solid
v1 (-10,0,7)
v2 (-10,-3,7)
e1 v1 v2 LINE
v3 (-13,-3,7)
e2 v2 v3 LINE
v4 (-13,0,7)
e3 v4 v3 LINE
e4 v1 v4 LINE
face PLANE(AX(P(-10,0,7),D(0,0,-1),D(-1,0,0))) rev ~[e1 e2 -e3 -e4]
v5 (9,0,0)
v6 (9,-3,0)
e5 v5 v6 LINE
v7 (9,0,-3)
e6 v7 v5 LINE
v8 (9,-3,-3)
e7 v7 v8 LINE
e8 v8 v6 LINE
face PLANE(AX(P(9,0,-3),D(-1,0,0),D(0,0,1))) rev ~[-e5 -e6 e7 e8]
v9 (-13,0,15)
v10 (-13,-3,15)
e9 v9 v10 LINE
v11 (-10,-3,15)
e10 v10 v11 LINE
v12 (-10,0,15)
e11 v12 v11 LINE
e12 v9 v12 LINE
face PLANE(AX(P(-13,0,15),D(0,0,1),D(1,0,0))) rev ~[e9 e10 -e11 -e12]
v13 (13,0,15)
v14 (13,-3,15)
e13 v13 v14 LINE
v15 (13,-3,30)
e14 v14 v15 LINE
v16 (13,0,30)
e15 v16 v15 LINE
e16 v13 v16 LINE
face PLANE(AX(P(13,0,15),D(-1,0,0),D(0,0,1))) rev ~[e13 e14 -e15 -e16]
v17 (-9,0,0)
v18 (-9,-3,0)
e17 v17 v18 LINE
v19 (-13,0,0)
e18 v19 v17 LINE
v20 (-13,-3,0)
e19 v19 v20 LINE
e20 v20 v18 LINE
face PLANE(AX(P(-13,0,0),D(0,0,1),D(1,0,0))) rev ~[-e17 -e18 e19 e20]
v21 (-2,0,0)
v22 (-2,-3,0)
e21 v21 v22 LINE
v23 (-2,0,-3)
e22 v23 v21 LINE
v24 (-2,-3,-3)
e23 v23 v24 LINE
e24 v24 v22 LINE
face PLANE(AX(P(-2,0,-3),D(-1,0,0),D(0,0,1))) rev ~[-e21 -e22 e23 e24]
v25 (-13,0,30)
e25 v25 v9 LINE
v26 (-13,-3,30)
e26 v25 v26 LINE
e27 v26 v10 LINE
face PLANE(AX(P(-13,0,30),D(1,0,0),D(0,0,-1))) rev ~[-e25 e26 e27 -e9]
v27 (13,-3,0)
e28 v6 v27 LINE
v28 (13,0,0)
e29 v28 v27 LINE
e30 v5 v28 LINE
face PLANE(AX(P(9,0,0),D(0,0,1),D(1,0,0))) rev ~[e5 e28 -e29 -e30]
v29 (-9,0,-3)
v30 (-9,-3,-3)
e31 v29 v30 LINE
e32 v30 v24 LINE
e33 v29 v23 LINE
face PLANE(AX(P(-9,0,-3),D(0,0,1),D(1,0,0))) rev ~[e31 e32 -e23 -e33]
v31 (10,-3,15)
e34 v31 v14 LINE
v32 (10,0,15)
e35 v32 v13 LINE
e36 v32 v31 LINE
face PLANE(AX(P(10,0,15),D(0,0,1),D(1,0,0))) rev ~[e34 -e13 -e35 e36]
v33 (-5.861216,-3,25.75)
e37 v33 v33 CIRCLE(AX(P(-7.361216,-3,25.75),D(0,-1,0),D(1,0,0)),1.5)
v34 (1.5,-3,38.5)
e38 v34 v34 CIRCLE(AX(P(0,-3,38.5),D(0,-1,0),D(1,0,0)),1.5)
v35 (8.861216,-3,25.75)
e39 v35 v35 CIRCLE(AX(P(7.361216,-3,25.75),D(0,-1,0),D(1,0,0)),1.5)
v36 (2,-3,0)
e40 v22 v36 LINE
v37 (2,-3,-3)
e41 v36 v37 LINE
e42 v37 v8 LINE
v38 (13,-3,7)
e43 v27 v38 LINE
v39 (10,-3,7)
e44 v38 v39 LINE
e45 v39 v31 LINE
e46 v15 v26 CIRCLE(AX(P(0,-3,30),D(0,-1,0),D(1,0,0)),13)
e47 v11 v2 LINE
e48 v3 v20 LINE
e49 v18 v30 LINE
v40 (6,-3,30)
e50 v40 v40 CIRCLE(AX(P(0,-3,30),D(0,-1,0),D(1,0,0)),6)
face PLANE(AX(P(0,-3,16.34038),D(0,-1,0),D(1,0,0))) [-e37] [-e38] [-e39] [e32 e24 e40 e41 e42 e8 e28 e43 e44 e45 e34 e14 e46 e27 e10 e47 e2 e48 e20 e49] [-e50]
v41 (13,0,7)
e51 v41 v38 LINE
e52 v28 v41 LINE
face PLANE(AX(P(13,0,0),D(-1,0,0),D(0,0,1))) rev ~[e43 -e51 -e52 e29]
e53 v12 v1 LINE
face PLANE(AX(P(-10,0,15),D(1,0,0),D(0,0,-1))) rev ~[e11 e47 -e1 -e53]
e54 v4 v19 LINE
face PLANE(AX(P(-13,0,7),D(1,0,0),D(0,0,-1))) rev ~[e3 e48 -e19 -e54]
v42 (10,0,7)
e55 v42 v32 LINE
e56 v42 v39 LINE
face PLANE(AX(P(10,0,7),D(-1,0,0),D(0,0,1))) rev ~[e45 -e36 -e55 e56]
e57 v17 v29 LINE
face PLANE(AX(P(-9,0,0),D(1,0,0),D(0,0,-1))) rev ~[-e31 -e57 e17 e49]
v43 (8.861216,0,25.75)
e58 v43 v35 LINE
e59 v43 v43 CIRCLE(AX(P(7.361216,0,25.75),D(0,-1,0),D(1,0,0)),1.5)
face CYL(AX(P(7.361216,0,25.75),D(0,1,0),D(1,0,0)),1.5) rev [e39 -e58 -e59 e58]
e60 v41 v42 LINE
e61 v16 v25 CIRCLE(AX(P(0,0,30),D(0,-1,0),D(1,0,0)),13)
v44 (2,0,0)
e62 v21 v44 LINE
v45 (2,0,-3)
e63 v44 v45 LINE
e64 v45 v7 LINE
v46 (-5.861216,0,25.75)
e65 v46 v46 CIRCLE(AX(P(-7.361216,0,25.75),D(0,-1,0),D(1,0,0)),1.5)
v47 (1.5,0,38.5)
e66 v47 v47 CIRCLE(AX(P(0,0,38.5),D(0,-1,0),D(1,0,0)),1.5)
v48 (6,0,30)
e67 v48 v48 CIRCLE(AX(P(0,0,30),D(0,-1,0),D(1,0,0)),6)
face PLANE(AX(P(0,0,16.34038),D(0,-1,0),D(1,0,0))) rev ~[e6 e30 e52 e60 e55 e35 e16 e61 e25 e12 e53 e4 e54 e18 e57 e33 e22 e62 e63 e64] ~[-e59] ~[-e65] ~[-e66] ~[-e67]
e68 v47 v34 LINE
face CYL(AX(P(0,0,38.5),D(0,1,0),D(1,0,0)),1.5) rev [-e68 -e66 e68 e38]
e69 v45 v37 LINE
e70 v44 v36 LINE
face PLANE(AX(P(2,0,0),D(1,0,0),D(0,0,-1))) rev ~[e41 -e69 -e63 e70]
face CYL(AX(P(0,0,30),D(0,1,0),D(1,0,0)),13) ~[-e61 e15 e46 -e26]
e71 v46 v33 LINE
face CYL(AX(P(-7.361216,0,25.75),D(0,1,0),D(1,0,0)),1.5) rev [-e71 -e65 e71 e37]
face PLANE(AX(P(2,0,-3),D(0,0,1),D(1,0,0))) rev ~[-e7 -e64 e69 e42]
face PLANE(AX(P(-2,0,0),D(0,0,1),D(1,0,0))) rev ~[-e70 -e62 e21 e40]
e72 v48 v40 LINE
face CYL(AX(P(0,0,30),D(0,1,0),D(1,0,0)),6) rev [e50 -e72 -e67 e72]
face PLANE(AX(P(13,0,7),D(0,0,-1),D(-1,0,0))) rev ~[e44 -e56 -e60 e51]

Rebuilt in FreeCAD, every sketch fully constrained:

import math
import FreeCAD as App
import Part
import Sketcher
Q = App.Units.Quantity

doc = App.newDocument("Part")
body = doc.addObject("PartDesign::Body", "Body")

# Sketch on XZ plane
sketch1 = body.newObject("Sketcher::SketchObject", "Sketch")
sketch1.AttachmentSupport = (doc.getObject("XZ_Plane"), [""])
sketch1.MapMode = "FlatFace"
sketch1.addGeometry(Part.LineSegment(App.Vector(13, 15, 0), App.Vector(13, 30, 0)), False)
sketch1.addGeometry(Part.ArcOfCircle(Part.Circle(App.Vector(0, 30, 0), App.Vector(0, 0, 1), 13), math.radians(0), math.radians(180)), False)
sketch1.addGeometry(Part.LineSegment(App.Vector(-13, 30, 0), App.Vector(-13, 15, 0)), False)
sketch1.addGeometry(Part.LineSegment(App.Vector(-13, 15, 0), App.Vector(-10, 15, 0)), False)
sketch1.addGeometry(Part.LineSegment(App.Vector(-10, 15, 0), App.Vector(-10, 7, 0)), False)
sketch1.addGeometry(Part.LineSegment(App.Vector(-10, 7, 0), App.Vector(-13, 7, 0)), False)
sketch1.addGeometry(Part.LineSegment(App.Vector(-13, 7, 0), App.Vector(-13, 0, 0)), False)
sketch1.addGeometry(Part.LineSegment(App.Vector(-13, 0, 0), App.Vector(-9, 0, 0)), False)
sketch1.addGeometry(Part.LineSegment(App.Vector(-9, 0, 0), App.Vector(-9, -3, 0)), False)
sketch1.addGeometry(Part.LineSegment(App.Vector(-9, -3, 0), App.Vector(-2, -3, 0)), False)
sketch1.addGeometry(Part.LineSegment(App.Vector(-2, -3, 0), App.Vector(-2, 0, 0)), False)
sketch1.addGeometry(Part.LineSegment(App.Vector(-2, 0, 0), App.Vector(2, 0, 0)), False)
sketch1.addGeometry(Part.LineSegment(App.Vector(2, 0, 0), App.Vector(2, -3, 0)), False)
sketch1.addGeometry(Part.LineSegment(App.Vector(2, -3, 0), App.Vector(9, -3, 0)), False)
sketch1.addGeometry(Part.LineSegment(App.Vector(9, -3, 0), App.Vector(9, 0, 0)), False)
sketch1.addGeometry(Part.LineSegment(App.Vector(9, 0, 0), App.Vector(13, 0, 0)), False)
sketch1.addGeometry(Part.LineSegment(App.Vector(13, 0, 0), App.Vector(13, 7, 0)), False)
sketch1.addGeometry(Part.LineSegment(App.Vector(13, 7, 0), App.Vector(10, 7, 0)), False)
sketch1.addGeometry(Part.LineSegment(App.Vector(10, 7, 0), App.Vector(10, 15, 0)), False)
sketch1.addGeometry(Part.LineSegment(App.Vector(10, 15, 0), App.Vector(13, 15, 0)), False)
sketch1.addGeometry(Part.Circle(App.Vector(-7.4, 25.8, 0), App.Vector(0, 0, 1), 1.5), False)
sketch1.addGeometry(Part.Circle(App.Vector(7.4, 25.8, 0), App.Vector(0, 0, 1), 1.5), False)
sketch1.addGeometry(Part.Circle(App.Vector(0, 30, 0), App.Vector(0, 0, 1), 6), False)
sketch1.addGeometry(Part.Circle(App.Vector(0, 38.5, 0), App.Vector(0, 0, 1), 1.5), False)
sketch1.addConstraint(Sketcher.Constraint("Tangent", 0, 2, 1, 1))
sketch1.addConstraint(Sketcher.Constraint("Tangent", 1, 2, 2, 1))
sketch1.addConstraint(Sketcher.Constraint("Coincident", 2, 2, 3, 1))
sketch1.addConstraint(Sketcher.Constraint("Coincident", 3, 2, 4, 1))
sketch1.addConstraint(Sketcher.Constraint("Coincident", 4, 2, 5, 1))
sketch1.addConstraint(Sketcher.Constraint("Coincident", 5, 2, 6, 1))
sketch1.addConstraint(Sketcher.Constraint("Coincident", 6, 2, 7, 1))
sketch1.addConstraint(Sketcher.Constraint("Coincident", 7, 2, 8, 1))
sketch1.addConstraint(Sketcher.Constraint("Coincident", 8, 2, 9, 1))
sketch1.addConstraint(Sketcher.Constraint("Coincident", 9, 2, 10, 1))
sketch1.addConstraint(Sketcher.Constraint("Coincident", 10, 2, 11, 1))
sketch1.addConstraint(Sketcher.Constraint("Coincident", 11, 2, 12, 1))
sketch1.addConstraint(Sketcher.Constraint("Coincident", 12, 2, 13, 1))
sketch1.addConstraint(Sketcher.Constraint("Coincident", 13, 2, 14, 1))
sketch1.addConstraint(Sketcher.Constraint("Coincident", 14, 2, 15, 1))
sketch1.addConstraint(Sketcher.Constraint("Coincident", 15, 2, 16, 1))
sketch1.addConstraint(Sketcher.Constraint("Coincident", 16, 2, 17, 1))
sketch1.addConstraint(Sketcher.Constraint("Coincident", 17, 2, 18, 1))
sketch1.addConstraint(Sketcher.Constraint("Coincident", 18, 2, 19, 1))
sketch1.addConstraint(Sketcher.Constraint("Coincident", 19, 2, 0, 1))
sketch1.addConstraint(Sketcher.Constraint("Vertical", 0))
sketch1.addConstraint(Sketcher.Constraint("Vertical", 2))
sketch1.addConstraint(Sketcher.Constraint("Horizontal", 3))
sketch1.addConstraint(Sketcher.Constraint("Vertical", 4))
sketch1.addConstraint(Sketcher.Constraint("Horizontal", 5))
sketch1.addConstraint(Sketcher.Constraint("Vertical", 6))
sketch1.addConstraint(Sketcher.Constraint("Horizontal", 7))
sketch1.addConstraint(Sketcher.Constraint("Vertical", 8))
sketch1.addConstraint(Sketcher.Constraint("Horizontal", 9))
sketch1.addConstraint(Sketcher.Constraint("Vertical", 10))
sketch1.addConstraint(Sketcher.Constraint("Horizontal", 11))
sketch1.addConstraint(Sketcher.Constraint("Vertical", 12))
sketch1.addConstraint(Sketcher.Constraint("Horizontal", 13))
sketch1.addConstraint(Sketcher.Constraint("Vertical", 14))
sketch1.addConstraint(Sketcher.Constraint("Horizontal", 15))
sketch1.addConstraint(Sketcher.Constraint("Vertical", 16))
sketch1.addConstraint(Sketcher.Constraint("Horizontal", 17))
sketch1.addConstraint(Sketcher.Constraint("Vertical", 18))
sketch1.addConstraint(Sketcher.Constraint("Horizontal", 19))
sketch1.addConstraint(Sketcher.Constraint("Coincident", 22, 3, 1, 3))
sketch1.addConstraint(Sketcher.Constraint("Equal", 20, 21))
sketch1.addConstraint(Sketcher.Constraint("Equal", 21, 23))
sketch1.addConstraint(Sketcher.Constraint("Symmetric", 10, 2, 11, 2, -1, 1))
sketch1.addConstraint(Sketcher.Constraint("Symmetric", 7, 2, 14, 2, -1, 1))
sketch1.addConstraint(Sketcher.Constraint("Symmetric", 20, 3, 21, 3, -2))
sketch1.addConstraint(Sketcher.Constraint("Symmetric", 6, 2, 15, 2, -2))
sketch1.addConstraint(Sketcher.Constraint("Symmetric", 4, 2, 17, 2, -2))
sketch1.addConstraint(Sketcher.Constraint("Symmetric", 2, 2, 19, 2, -2))
sketch1.addConstraint(Sketcher.Constraint("PointOnObject", 23, 3, -2))
sketch1.addConstraint(Sketcher.Constraint("Horizontal", 9, 2, 12, 2))
sketch1.addConstraint(Sketcher.Constraint("Vertical", 2, 2, 5, 2))
sketch1.addConstraint(Sketcher.Constraint("Equal", 7, 11))
sketch1.addConstraint(Sketcher.Constraint("Equal", 13, 6))
sketch1.addConstraint(Sketcher.Constraint("Equal", 19, 8))
sketch1.addConstraint(Sketcher.Constraint("Diameter", 20, Q("3 mm")))
sketch1.addConstraint(Sketcher.Constraint("Diameter", 22, Q("12 mm")))
sketch1.addConstraint(Sketcher.Constraint("Radius", 1, Q("13 mm")))
sketch1.addConstraint(Sketcher.Constraint("DistanceX", 3, 1, 3, 2, Q("3 mm")))
sketch1.addConstraint(Sketcher.Constraint("DistanceX", 7, 1, 7, 2, Q("4 mm")))
sketch1.addConstraint(Sketcher.Constraint("DistanceY", 0, 1, 0, 2, Q("15 mm")))
sketch1.addConstraint(Sketcher.Constraint("DistanceY", 4, 2, 4, 1, Q("8 mm")))
sketch1.addConstraint(Sketcher.Constraint("DistanceY", -1, 1, 23, 3, Q("38.5 mm")))
sketch1.addConstraint(Sketcher.Constraint("DistanceY", -1, 1, 20, 3, Q("25.75 mm")))
sketch1.addConstraint(Sketcher.Constraint("DistanceX", 20, 3, -1, 1, Q("7.361216 mm")))
pad1 = body.newObject("PartDesign::Pad", "Pad")
pad1.Profile = sketch1
pad1.Length = 3

doc.recompute()
